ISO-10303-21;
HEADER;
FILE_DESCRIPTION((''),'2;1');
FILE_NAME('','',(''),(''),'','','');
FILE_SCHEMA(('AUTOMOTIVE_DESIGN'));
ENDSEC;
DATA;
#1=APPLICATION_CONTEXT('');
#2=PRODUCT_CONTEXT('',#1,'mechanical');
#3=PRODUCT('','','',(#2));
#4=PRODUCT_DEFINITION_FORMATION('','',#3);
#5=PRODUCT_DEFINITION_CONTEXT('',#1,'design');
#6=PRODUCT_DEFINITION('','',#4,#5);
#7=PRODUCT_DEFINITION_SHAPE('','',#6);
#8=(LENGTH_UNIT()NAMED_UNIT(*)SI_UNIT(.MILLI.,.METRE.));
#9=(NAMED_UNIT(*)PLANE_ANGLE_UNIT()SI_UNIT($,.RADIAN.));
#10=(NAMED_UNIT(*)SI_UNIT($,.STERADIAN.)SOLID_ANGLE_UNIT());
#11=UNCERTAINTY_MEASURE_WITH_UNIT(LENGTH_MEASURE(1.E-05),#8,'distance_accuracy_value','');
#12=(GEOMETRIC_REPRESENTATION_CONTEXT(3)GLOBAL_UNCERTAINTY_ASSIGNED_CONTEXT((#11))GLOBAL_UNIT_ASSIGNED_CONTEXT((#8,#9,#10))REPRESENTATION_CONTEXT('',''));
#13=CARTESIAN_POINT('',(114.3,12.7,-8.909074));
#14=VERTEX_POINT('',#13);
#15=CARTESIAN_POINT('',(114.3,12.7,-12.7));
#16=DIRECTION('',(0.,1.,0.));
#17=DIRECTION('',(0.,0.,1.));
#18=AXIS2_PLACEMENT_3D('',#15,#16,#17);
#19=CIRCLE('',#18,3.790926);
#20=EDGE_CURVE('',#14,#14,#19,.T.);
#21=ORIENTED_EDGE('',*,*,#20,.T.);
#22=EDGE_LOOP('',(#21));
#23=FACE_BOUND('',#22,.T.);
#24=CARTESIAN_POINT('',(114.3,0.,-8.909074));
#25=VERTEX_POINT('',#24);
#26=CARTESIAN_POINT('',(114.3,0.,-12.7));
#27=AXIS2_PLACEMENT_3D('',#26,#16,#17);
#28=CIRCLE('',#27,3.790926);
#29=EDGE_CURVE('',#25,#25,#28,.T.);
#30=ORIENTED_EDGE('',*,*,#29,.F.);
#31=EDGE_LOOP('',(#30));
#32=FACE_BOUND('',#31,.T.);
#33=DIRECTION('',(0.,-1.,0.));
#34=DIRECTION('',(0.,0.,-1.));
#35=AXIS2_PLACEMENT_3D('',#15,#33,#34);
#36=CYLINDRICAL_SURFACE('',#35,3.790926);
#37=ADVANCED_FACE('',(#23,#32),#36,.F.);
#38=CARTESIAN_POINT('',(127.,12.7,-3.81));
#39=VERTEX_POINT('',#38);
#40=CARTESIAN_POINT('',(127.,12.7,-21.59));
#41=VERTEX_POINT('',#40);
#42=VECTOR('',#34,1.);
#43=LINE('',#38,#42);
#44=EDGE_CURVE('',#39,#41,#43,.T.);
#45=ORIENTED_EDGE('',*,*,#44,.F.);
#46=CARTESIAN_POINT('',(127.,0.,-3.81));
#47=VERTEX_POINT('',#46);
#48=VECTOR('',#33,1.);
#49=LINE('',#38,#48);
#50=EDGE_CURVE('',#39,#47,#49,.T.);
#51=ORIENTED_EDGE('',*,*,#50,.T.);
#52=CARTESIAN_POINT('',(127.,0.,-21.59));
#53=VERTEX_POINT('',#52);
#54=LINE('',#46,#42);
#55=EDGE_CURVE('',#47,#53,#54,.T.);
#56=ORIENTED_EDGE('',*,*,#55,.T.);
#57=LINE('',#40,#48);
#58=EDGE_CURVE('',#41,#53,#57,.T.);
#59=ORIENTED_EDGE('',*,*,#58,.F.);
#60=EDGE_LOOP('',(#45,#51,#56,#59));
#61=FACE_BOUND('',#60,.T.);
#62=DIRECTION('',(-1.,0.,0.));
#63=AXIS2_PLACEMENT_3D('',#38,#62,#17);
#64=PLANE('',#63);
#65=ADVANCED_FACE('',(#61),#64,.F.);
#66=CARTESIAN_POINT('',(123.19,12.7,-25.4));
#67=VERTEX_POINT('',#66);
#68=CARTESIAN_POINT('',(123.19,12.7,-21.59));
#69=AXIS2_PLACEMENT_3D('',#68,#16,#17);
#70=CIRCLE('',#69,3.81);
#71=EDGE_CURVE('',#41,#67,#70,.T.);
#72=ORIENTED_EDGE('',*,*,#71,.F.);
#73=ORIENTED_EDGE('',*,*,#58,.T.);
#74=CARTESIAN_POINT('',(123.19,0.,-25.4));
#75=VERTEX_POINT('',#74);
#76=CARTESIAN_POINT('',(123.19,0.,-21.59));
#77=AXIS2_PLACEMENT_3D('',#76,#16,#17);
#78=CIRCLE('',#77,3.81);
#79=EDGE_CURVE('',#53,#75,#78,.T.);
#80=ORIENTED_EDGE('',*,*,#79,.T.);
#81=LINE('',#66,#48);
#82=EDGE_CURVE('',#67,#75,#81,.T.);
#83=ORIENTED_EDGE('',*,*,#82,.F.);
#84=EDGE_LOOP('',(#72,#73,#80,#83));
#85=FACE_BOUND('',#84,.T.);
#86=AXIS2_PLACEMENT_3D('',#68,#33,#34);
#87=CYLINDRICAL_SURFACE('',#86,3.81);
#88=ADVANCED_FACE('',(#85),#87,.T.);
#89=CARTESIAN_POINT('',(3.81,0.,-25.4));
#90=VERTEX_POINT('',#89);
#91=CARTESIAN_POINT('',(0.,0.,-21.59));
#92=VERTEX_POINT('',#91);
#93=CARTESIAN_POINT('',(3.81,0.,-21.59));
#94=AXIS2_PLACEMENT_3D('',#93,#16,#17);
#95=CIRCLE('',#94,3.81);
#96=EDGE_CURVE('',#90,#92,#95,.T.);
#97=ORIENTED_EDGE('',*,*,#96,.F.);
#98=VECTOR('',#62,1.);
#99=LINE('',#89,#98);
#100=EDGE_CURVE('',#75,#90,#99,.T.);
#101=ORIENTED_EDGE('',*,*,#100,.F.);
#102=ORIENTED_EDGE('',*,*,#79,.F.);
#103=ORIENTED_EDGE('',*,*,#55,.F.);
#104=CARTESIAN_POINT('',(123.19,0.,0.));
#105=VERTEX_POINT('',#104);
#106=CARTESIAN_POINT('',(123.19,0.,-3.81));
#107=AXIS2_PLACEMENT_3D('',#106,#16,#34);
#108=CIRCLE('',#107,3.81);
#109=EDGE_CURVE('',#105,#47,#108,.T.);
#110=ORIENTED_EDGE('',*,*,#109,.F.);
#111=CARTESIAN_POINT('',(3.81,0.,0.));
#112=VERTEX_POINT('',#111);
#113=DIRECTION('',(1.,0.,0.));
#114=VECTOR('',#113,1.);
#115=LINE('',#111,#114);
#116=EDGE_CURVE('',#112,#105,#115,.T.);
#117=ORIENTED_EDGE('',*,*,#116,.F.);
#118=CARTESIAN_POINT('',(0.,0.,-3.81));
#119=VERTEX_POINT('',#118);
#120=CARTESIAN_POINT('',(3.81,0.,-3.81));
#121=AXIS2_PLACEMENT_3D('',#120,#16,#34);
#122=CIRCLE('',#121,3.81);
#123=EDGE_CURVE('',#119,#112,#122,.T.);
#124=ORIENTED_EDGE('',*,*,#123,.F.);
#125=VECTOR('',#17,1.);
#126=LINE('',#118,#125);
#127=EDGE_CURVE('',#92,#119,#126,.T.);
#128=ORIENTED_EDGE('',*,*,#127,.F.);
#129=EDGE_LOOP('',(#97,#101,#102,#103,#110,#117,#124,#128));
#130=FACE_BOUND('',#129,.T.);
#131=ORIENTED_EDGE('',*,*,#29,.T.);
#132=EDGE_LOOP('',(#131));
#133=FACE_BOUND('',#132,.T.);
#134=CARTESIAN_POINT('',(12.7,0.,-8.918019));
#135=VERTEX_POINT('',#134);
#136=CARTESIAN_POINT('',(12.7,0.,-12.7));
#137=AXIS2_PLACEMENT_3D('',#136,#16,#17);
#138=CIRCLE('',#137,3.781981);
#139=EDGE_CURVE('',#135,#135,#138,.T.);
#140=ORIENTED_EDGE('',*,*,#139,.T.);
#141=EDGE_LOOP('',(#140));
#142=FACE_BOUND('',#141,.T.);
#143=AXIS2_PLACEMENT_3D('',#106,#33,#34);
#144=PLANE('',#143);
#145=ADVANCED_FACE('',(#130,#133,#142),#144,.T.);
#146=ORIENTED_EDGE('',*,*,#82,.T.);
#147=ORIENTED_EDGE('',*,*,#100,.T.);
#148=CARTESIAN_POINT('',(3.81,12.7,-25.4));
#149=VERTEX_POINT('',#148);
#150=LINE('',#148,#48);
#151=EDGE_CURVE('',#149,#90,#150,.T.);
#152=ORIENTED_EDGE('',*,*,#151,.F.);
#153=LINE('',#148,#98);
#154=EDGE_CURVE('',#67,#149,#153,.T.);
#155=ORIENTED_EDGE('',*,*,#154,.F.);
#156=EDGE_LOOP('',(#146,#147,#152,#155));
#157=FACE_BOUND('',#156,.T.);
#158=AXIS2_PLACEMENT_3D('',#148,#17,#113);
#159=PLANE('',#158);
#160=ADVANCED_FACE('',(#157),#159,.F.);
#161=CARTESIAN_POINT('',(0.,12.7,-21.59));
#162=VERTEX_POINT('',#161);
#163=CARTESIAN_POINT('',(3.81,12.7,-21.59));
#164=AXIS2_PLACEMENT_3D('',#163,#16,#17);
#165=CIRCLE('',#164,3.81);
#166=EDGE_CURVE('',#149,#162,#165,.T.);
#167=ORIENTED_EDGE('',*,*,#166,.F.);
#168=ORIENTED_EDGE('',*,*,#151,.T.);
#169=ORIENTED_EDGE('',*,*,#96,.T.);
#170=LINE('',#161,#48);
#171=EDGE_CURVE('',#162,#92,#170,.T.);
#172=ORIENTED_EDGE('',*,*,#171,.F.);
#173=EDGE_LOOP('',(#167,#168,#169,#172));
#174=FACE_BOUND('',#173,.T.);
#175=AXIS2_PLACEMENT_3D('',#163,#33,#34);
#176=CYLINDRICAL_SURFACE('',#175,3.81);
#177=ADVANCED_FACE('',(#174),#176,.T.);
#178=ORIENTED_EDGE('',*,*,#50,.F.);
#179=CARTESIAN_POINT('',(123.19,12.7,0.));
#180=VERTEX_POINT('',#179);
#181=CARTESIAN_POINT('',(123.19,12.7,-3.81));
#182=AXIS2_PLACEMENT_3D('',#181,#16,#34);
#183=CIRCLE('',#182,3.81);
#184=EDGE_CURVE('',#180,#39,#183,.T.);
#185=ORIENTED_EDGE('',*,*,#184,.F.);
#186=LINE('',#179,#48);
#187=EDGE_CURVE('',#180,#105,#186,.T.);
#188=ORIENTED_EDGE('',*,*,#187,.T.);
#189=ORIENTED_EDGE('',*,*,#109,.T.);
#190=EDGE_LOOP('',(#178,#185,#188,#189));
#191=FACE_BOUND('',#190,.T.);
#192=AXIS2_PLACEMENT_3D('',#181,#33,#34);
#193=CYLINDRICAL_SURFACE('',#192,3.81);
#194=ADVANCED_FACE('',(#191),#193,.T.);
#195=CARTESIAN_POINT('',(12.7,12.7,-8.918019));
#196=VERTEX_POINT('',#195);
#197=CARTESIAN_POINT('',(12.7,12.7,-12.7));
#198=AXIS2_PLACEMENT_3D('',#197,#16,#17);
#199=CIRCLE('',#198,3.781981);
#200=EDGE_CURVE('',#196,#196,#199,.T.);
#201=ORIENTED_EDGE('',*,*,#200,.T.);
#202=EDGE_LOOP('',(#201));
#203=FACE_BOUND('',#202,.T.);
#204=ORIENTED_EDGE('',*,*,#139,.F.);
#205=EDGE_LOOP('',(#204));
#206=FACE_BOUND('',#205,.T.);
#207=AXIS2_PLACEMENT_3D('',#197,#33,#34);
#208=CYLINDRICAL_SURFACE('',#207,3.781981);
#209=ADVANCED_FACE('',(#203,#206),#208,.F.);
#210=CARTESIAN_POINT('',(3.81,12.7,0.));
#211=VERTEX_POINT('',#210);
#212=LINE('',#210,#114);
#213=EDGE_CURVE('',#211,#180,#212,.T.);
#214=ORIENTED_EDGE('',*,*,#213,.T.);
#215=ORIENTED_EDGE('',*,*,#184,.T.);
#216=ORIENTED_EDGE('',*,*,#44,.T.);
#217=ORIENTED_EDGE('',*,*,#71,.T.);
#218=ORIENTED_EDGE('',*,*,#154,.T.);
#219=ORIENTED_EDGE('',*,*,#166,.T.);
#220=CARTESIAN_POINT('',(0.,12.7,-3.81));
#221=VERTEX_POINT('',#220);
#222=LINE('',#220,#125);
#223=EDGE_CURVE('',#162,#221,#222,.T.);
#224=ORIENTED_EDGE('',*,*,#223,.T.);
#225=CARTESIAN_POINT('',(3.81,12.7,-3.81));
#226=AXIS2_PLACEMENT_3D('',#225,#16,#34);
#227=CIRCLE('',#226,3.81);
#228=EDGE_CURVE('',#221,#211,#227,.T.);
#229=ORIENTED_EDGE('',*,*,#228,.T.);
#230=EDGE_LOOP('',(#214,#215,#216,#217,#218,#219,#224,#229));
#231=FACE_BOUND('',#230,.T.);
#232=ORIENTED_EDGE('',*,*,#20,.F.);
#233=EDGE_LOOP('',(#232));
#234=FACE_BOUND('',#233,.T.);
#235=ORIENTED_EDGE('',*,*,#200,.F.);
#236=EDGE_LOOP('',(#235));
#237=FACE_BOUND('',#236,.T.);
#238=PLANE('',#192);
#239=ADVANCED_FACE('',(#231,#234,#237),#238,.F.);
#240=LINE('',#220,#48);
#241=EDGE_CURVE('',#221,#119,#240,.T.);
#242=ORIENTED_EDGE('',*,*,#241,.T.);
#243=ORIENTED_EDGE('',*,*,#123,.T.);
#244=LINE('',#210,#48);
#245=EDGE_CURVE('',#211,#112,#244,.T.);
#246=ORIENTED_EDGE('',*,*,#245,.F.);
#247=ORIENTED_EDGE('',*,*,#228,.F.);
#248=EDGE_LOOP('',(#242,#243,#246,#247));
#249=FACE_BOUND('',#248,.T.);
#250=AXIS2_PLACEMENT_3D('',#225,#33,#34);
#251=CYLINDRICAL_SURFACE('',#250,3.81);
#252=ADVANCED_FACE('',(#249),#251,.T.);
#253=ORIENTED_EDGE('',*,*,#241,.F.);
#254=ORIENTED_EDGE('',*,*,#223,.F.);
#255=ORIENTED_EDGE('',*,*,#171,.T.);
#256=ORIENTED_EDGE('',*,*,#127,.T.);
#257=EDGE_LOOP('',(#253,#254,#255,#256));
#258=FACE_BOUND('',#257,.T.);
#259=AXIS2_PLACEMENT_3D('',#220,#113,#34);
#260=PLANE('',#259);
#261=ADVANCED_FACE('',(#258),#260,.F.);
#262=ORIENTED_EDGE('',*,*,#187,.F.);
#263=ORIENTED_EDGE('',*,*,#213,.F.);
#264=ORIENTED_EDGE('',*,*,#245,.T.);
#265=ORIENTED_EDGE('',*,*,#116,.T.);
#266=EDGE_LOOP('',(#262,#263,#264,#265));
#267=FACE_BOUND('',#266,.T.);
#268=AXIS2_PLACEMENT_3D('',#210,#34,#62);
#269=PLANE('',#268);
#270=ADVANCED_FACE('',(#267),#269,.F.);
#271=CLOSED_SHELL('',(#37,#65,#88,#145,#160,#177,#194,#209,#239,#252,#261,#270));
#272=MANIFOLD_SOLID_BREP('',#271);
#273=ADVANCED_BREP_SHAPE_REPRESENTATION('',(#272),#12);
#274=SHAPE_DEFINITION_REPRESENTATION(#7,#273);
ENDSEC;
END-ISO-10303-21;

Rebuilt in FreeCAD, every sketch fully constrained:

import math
import FreeCAD as App
import Part
import Sketcher
Q = App.Units.Quantity

doc = App.newDocument("Part")
body = doc.addObject("PartDesign::Body", "Body")

# Sketch on XZ plane
sketch1 = body.newObject("Sketcher::SketchObject", "Sketch")
sketch1.AttachmentSupport = (doc.getObject("XZ_Plane"), [""])
sketch1.MapMode = "FlatFace"
sketch1.addGeometry([
    Part.LineSegment(App.Vector(3.8, 0, 0), App.Vector(123.2, 0, 0)),  # 0
    Part.ArcOfCircle(Part.Circle(App.Vector(123.2, -3.8, 0), App.Vector(0, 0, 1), 3.8), math.radians(0), math.radians(90)),  # 1
    Part.LineSegment(App.Vector(127, -3.8, 0), App.Vector(127, -21.6, 0)),  # 2
    Part.ArcOfCircle(Part.Circle(App.Vector(123.2, -21.6, 0), App.Vector(0, 0, 1), 3.8), math.radians(-90), math.radians(0)),  # 3
    Part.LineSegment(App.Vector(123.2, -25.4, 0), App.Vector(3.8, -25.4, 0)),  # 4
    Part.ArcOfCircle(Part.Circle(App.Vector(3.8, -21.6, 0), App.Vector(0, 0, 1), 3.8), math.radians(-180), math.radians(-90)),  # 5
    Part.LineSegment(App.Vector(0, -21.6, 0), App.Vector(0, -3.8, 0)),  # 6
    Part.ArcOfCircle(Part.Circle(App.Vector(3.8, -3.8, 0), App.Vector(0, 0, 1), 3.8), math.radians(90), math.radians(180)),  # 7
    Part.Circle(App.Vector(12.7, -12.7, 0), App.Vector(0, 0, 1), 3.8),  # 8
    Part.Circle(App.Vector(114.3, -12.7, 0), App.Vector(0, 0, 1), 3.8),  # 9
], False)
sketch1.addConstraint([
    Sketcher.Constraint("Tangent", 0, 2, 1, 2),
    Sketcher.Constraint("Tangent", 1, 1, 2, 1),
    Sketcher.Constraint("Tangent", 2, 2, 3, 2),
    Sketcher.Constraint("Tangent", 3, 1, 4, 1),
    Sketcher.Constraint("Tangent", 4, 2, 5, 2),
    Sketcher.Constraint("Tangent", 5, 1, 6, 1),
    Sketcher.Constraint("Tangent", 6, 2, 7, 2),
    Sketcher.Constraint("Tangent", 7, 1, 0, 1),
    Sketcher.Constraint("Horizontal", 0),
    Sketcher.Constraint("Vertical", 2),
    Sketcher.Constraint("Horizontal", 4),
    Sketcher.Constraint("Vertical", 6),
    Sketcher.Constraint("Equal", 1, 3),
    Sketcher.Constraint("Equal", 3, 5),
    Sketcher.Constraint("Equal", 5, 7),
    Sketcher.Constraint("PointOnObject", 0, 2, -1),
    Sketcher.Constraint("PointOnObject", 5, 1, -2),
    Sketcher.Constraint("Horizontal", 8, 3, 9, 3),
    Sketcher.Constraint("Radius", 1, Q("0.15 in")),
    Sketcher.Constraint("DistanceX", 0, 1, 0, 2, Q("4.7 in")),
    Sketcher.Constraint("DistanceY", 2, 2, 2, 1, Q("0.7 in")),
    Sketcher.Constraint("DistanceX", 8, 3, 9, 3, Q("4 in")),
    Sketcher.Constraint("DistanceX", -1, 1, 8, 3, Q("0.5 in")),
    Sketcher.Constraint("DistanceY", 8, 3, -1, 1, Q("0.5 in")),
    Sketcher.Constraint("Diameter", 8, 7.563962),
    Sketcher.Constraint("Diameter", 9, 7.581853),
])
pad1 = body.newObject("PartDesign::Pad", "Pad")
pad1.Profile = sketch1
pad1.Length = Q("0.5 in")
pad1.Reversed = True

doc.recompute()
